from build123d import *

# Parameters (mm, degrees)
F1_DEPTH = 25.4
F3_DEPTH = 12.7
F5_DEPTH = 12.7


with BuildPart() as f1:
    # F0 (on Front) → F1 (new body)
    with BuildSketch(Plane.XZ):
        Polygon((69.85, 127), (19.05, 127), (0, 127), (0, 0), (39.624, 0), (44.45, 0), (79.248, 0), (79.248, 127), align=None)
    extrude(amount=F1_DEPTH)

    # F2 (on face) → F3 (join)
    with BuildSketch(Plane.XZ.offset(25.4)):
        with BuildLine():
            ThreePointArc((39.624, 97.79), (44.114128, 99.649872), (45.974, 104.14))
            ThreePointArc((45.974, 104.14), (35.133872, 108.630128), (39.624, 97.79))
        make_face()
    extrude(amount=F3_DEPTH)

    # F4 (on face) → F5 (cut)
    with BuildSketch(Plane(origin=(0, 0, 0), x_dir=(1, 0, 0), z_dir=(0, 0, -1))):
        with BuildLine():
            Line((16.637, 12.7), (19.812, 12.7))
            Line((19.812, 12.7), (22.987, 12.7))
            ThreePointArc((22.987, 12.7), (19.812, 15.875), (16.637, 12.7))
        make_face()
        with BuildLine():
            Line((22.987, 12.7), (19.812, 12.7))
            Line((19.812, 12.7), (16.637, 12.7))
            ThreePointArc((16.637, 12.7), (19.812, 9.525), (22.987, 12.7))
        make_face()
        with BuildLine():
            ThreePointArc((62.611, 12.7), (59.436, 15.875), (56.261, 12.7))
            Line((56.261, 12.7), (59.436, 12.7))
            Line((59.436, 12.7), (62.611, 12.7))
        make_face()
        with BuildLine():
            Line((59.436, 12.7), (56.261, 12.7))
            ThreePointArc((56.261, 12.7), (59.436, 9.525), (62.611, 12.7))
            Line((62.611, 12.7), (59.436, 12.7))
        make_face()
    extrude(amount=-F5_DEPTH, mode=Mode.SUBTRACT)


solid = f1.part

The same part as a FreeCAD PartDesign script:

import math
import FreeCAD as App
import Part
import Sketcher

V = App.Vector
Q = App.Units.Quantity


def add_polygon(sketch, points):
    """Adds a closed chain of lines whose ends are joined by coincident constraints."""
    first, n = sketch.GeometryCount, len(points)
    for a, b in zip(points, points[1:] + points[:1]):
        sketch.addGeometry(Part.LineSegment(App.Vector(*a, 0), App.Vector(*b, 0)), False)
    for i in range(n):
        sketch.addConstraint(Sketcher.Constraint("Coincident", first + i, 2, first + (i + 1) % n, 1))

doc = App.newDocument("Part")
params = doc.addObject("Spreadsheet::Sheet", "Params")
for row, (alias, value) in enumerate([
    ("sketch1_height", "5 in"),
    ("sketch1_width", "3.12 in"),
    ("pad1_length", "1 in"),
    ("sketch2_radius", "0.25 in"),
    ("pad2_length", "0.5 in"),
    ("sketch3_diameter", "0.25 in"),
    ("pocket1_length", "0.5 in"),
], start=1):
    params.set(f"A{row}", alias)
    params.set(f"B{row}", "=" + value)
    params.setAlias(f"B{row}", alias)

body = doc.addObject("PartDesign::Body", "Body")

# Sketch on XZ plane
sketch1 = doc.addObject("Sketcher::SketchObject", "Sketch")
body.addObject(sketch1)
sketch1.AttachmentSupport = (doc.XZ_Plane, [""])
sketch1.MapMode = "FlatFace"
add_polygon(sketch1, [(0, 127), (0, 0), (79.248, 0), (79.248, 127)])  # lines 0-3
sketch1.addConstraint(Sketcher.Constraint("Vertical", 0))
sketch1.addConstraint(Sketcher.Constraint("Horizontal", 1))
sketch1.addConstraint(Sketcher.Constraint("Vertical", 2))
sketch1.addConstraint(Sketcher.Constraint("Horizontal", 3))
sketch1.addConstraint(Sketcher.Constraint("Coincident", 0, 2, -1, 1))
sketch1.addConstraint(Sketcher.Constraint("DistanceY", 0, 2, 0, 1, Q("5 in")))
sketch1.addConstraint(Sketcher.Constraint("DistanceX", 1, 1, 1, 2, Q("3.12 in")))
sketch1.setExpression("Constraints[9]", "Params.sketch1_height")
sketch1.setExpression("Constraints[10]", "Params.sketch1_width")
pad1 = doc.addObject("PartDesign::Pad", "Pad")
body.addObject(pad1)
pad1.Profile = sketch1
pad1.setExpression("Length", "Params.pad1_length")

# Sketch on XZ plane
sketch2 = doc.addObject("Sketcher::SketchObject", "Sketch001")
body.addObject(sketch2)
sketch2.AttachmentSupport = (doc.XZ_Plane, [""])
sketch2.MapMode = "FlatFace"
sketch2.AttachmentOffset = App.Placement(V(0, 0, 1 * 25.4), App.Rotation())
sketch2.addGeometry(Part.ArcOfCircle(Part.Circle(V(39.624, 104.14, 0), V(0, 0, 1), 6.35), math.radians(-89.999998), math.radians(-0.000002)), False)
sketch2.addGeometry(Part.ArcOfCircle(Part.Circle(V(39.624, 104.14, 0), V(0, 0, 1), 6.35), math.radians(0), math.radians(270)), False)
sketch2.addConstraint(Sketcher.Constraint("Tangent", 0, 1, 1, 2))
sketch2.addConstraint(Sketcher.Constraint("Coincident", 1, 1, 0, 2))
sketch2.addConstraint(Sketcher.Constraint("Horizontal", 0, 3, 1, 1))
sketch2.addConstraint(Sketcher.Constraint("Vertical", 1, 3, 0, 1))
sketch2.addConstraint(Sketcher.Constraint("Radius", 0, Q("0.25 in")))
sketch2.addConstraint(Sketcher.Constraint("DistanceY", -1, 1, 0, 3, Q("4.1 in")))
sketch2.addConstraint(Sketcher.Constraint("DistanceX", -1, 1, 0, 3, Q("1.56 in")))
sketch2.setExpression("Constraints[4]", "Params.sketch2_radius")
pad2 = doc.addObject("PartDesign::Pad", "Pad001")
body.addObject(pad2)
pad2.Profile = sketch2
pad2.setExpression("Length", "Params.pad2_length")

# Sketch on XY plane
sketch3 = doc.addObject("Sketcher::SketchObject", "Sketch002")
body.addObject(sketch3)
sketch3.AttachmentSupport = (doc.XY_Plane, [""])
sketch3.MapMode = "FlatFace"
sketch3.addGeometry(Part.Circle(V(19.812, -12.7, 0), V(0, 0, 1), 3.175), False)
sketch3.addGeometry(Part.Circle(V(59.436, -12.7, 0), V(0, 0, 1), 3.175), False)
sketch3.addConstraint(Sketcher.Constraint("Equal", 0, 1))
sketch3.addConstraint(Sketcher.Constraint("Horizontal", 0, 3, 1, 3))
sketch3.addConstraint(Sketcher.Constraint("Diameter", 0, Q("0.25 in")))
sketch3.addConstraint(Sketcher.Constraint("DistanceY", 0, 3, -1, 1, Q("0.5 in")))
sketch3.addConstraint(Sketcher.Constraint("DistanceX", -1, 1, 0, 3, Q("0.78 in")))
sketch3.addConstraint(Sketcher.Constraint("DistanceX", -1, 1, 1, 3, Q("2.34 in")))
sketch3.setExpression("Constraints[2]", "Params.sketch3_diameter")
pocket1 = doc.addObject("PartDesign::Pocket", "Pocket")
body.addObject(pocket1)
pocket1.Profile = sketch3
pocket1.setExpression("Length", "Params.pocket1_length")
pocket1.Reversed = True

doc.recompute()
